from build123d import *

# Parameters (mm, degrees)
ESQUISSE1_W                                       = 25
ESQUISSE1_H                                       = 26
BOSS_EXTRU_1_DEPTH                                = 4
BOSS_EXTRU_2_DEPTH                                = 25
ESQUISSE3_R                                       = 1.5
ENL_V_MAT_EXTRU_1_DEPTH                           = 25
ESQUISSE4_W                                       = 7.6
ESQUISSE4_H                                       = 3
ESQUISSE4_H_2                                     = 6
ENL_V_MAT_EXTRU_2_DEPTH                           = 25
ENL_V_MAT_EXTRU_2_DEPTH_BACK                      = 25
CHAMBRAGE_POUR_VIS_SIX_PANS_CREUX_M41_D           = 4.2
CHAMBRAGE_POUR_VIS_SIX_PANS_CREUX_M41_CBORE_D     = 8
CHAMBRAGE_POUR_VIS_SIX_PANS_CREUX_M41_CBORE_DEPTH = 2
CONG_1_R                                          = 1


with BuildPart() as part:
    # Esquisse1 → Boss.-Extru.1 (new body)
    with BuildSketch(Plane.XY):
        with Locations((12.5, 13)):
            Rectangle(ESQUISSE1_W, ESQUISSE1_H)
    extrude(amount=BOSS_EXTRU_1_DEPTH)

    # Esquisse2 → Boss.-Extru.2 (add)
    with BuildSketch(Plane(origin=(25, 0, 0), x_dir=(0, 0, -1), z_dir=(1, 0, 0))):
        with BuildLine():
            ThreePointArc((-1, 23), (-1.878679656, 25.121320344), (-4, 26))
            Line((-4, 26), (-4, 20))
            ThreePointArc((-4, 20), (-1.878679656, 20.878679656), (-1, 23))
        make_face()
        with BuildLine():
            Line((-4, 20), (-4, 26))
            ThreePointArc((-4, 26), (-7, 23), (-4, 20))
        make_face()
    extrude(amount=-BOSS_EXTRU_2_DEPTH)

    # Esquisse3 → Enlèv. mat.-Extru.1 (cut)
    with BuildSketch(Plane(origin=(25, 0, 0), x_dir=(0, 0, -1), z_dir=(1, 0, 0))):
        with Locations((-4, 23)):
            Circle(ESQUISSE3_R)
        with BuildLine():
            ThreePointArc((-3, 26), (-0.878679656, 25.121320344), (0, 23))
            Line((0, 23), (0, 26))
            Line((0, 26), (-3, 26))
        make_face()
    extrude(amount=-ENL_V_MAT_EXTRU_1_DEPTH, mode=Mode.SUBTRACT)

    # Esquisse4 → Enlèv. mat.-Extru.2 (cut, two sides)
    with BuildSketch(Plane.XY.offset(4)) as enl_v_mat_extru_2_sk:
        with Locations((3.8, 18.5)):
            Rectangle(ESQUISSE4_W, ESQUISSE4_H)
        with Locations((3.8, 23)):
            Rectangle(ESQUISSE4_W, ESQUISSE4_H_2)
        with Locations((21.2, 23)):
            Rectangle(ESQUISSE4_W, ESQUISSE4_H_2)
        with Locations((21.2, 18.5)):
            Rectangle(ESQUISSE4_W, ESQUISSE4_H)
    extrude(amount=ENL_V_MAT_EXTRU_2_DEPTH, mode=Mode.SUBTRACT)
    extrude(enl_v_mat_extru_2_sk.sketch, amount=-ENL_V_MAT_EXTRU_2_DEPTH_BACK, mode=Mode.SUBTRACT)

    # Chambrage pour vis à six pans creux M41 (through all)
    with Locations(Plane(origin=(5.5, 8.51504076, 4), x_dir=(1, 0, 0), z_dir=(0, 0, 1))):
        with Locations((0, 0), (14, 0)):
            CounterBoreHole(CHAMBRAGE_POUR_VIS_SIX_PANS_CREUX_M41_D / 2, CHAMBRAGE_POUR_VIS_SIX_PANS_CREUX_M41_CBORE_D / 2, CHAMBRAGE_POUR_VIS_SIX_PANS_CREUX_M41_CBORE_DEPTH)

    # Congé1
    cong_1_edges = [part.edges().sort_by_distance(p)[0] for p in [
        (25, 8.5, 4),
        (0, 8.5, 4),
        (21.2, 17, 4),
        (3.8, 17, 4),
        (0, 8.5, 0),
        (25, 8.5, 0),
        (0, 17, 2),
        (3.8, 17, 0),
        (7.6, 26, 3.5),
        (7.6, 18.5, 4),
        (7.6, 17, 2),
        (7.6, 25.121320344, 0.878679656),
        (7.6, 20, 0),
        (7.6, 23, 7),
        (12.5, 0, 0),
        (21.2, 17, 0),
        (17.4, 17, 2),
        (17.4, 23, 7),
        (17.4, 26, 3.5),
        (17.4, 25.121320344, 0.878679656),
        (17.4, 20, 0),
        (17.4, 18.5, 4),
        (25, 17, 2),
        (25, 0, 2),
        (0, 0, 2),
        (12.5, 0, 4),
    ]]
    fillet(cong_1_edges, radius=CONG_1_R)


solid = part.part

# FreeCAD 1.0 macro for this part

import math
import FreeCAD as App
import Part
import Sketcher
from FreeCAD import Vector


def edges_at(feature, points):
    """Names of the edges that pass closest to the given points."""
    edges = feature.Shape.Edges
    near = lambda p: min(range(len(edges)), key=lambda i: edges[i].distToShape(Part.Vertex(*p))[0])
    return sorted({f"Edge{near(p) + 1}" for p in points})

doc = App.newDocument("Part")
body = doc.addObject("PartDesign::Body", "Body")

# Sketch on XY plane
sketch1 = doc.addObject("Sketcher::SketchObject", "Sketch")
body.addObject(sketch1)
sketch1.AttachmentSupport = (doc.XY_Plane, [""])
sketch1.MapMode = "FlatFace"
sketch1.addGeometry([
    Part.LineSegment(Vector(0, 26, 0), Vector(0, 0, 0)),
    Part.LineSegment(Vector(0, 0, 0), Vector(25, 0, 0)),
    Part.LineSegment(Vector(25, 0, 0), Vector(25, 26, 0)),
    Part.LineSegment(Vector(25, 26, 0), Vector(0, 26, 0)),
], False)
sketch1.addConstraint([
    Sketcher.Constraint("Coincident", 0, 2, 1, 1),
    Sketcher.Constraint("Coincident", 1, 2, 2, 1),
    Sketcher.Constraint("Coincident", 2, 2, 3, 1),
    Sketcher.Constraint("Coincident", 3, 2, 0, 1),
    Sketcher.Constraint("Vertical", 0),
    Sketcher.Constraint("Horizontal", 1),
    Sketcher.Constraint("Vertical", 2),
    Sketcher.Constraint("Horizontal", 3),
    Sketcher.Constraint("Coincident", 0, 2, -1, 1),
    Sketcher.Constraint("DistanceX", 1, 1, 1, 2, 25.0),
    Sketcher.Constraint("DistanceY", 0, 2, 0, 1, 26.0),
])
pad1 = doc.addObject("PartDesign::Pad", "Pad")
body.addObject(pad1)
pad1.Profile = sketch1
pad1.Length = 4

# Sketch on YZ plane
sketch2 = doc.addObject("Sketcher::SketchObject", "Sketch001")
body.addObject(sketch2)
sketch2.AttachmentSupport = (doc.YZ_Plane, [""])
sketch2.MapMode = "FlatFace"
sketch2.AttachmentOffset = App.Placement(Vector(0, 0, 25), App.Rotation())
sketch2.addGeometry([
    Part.ArcOfCircle(Part.Circle(Vector(23, 4, 0), Vector(0, 0, 1), 3), math.radians(-90), math.radians(0)),
    Part.ArcOfCircle(Part.Circle(Vector(23, 4, 0), Vector(0, 0, 1), 3), math.radians(0), math.radians(180)),
    Part.ArcOfCircle(Part.Circle(Vector(23, 4, 0), Vector(0, 0, 1), 3), math.radians(180), math.radians(270)),
], False)
sketch2.addConstraint([
    Sketcher.Constraint("Tangent", 0, 2, 1, 1),
    Sketcher.Constraint("Tangent", 1, 2, 2, 1),
    Sketcher.Constraint("Tangent", 2, 2, 0, 1),
    Sketcher.Constraint("Horizontal", 2, 3, 0, 2),
    Sketcher.Constraint("Horizontal", 0, 2, 1, 2),
    Sketcher.Constraint("Vertical", 1, 3, 2, 2),
    Sketcher.Constraint("Radius", 0, 3.0),
    Sketcher.Constraint("DistanceX", -1, 1, 0, 3, 23.0),
    Sketcher.Constraint("DistanceY", -1, 1, 0, 3, 4.0),
])
pad2 = doc.addObject("PartDesign::Pad", "Pad001")
body.addObject(pad2)
pad2.Profile = sketch2
pad2.Length = 25
pad2.Reversed = True

# Sketch on YZ plane
sketch3 = doc.addObject("Sketcher::SketchObject", "Sketch002")
body.addObject(sketch3)
sketch3.AttachmentSupport = (doc.YZ_Plane, [""])
sketch3.MapMode = "FlatFace"
sketch3.AttachmentOffset = App.Placement(Vector(0, 0, 25), App.Rotation())
sketch3.addGeometry([
    Part.Circle(Vector(23, 4, 0), Vector(0, 0, 1), 1.5),
    Part.ArcOfCircle(Part.Circle(Vector(23, 3, 0), Vector(0, 0, 1), 3), math.radians(-90), math.radians(0)),
    Part.LineSegment(Vector(23, 0, 0), Vector(26, 0, 0)),
    Part.LineSegment(Vector(26, 0, 0), Vector(26, 3, 0)),
], False)
sketch3.addConstraint([
    Sketcher.Constraint("Tangent", 1, 1, 2, 1),
    Sketcher.Constraint("Coincident", 2, 2, 3, 1),
    Sketcher.Constraint("Tangent", 3, 2, 1, 2),
    Sketcher.Constraint("Horizontal", 2),
    Sketcher.Constraint("Vertical", 3),
    Sketcher.Constraint("PointOnObject", 1, 1, -1),
    Sketcher.Constraint("Vertical", 0, 3, 1, 3),
    Sketcher.Constraint("Diameter", 0, 3.0),
    Sketcher.Constraint("Radius", 1, 3.0),
    Sketcher.Constraint("DistanceX", -1, 1, 0, 3, 23.0),
    Sketcher.Constraint("DistanceY", -1, 1, 0, 3, 4.0),
])
pocket1 = doc.addObject("PartDesign::Pocket", "Pocket")
body.addObject(pocket1)
pocket1.Profile = sketch3
pocket1.Length = 25

# Sketch on XY plane
sketch4 = doc.addObject("Sketcher::SketchObject", "Sketch003")
body.addObject(sketch4)
sketch4.AttachmentSupport = (doc.XY_Plane, [""])
sketch4.MapMode = "FlatFace"
sketch4.AttachmentOffset = App.Placement(Vector(0, 0, 4), App.Rotation())
sketch4.addGeometry([
    Part.LineSegment(Vector(0, 17, 0), Vector(8, 17, 0)),  # 0
    Part.LineSegment(Vector(8, 17, 0), Vector(8, 26, 0)),  # 1
    Part.LineSegment(Vector(8, 26, 0), Vector(0, 26, 0)),  # 2
    Part.LineSegment(Vector(0, 26, 0), Vector(0, 17, 0)),  # 3
    Part.LineSegment(Vector(17, 26, 0), Vector(17, 17, 0)),  # 4
    Part.LineSegment(Vector(17, 17, 0), Vector(25, 17, 0)),  # 5
    Part.LineSegment(Vector(25, 17, 0), Vector(25, 26, 0)),  # 6
    Part.LineSegment(Vector(25, 26, 0), Vector(17, 26, 0)),  # 7
], False)
sketch4.addConstraint([
    Sketcher.Constraint("Coincident", 0, 2, 1, 1),
    Sketcher.Constraint("Coincident", 1, 2, 2, 1),
    Sketcher.Constraint("Coincident", 2, 2, 3, 1),
    Sketcher.Constraint("Coincident", 3, 2, 0, 1),
    Sketcher.Constraint("Coincident", 4, 2, 5, 1),
    Sketcher.Constraint("Coincident", 5, 2, 6, 1),
    Sketcher.Constraint("Coincident", 6, 2, 7, 1),
    Sketcher.Constraint("Coincident", 7, 2, 4, 1),
    Sketcher.Constraint("Horizontal", 0),
    Sketcher.Constraint("Vertical", 1),
    Sketcher.Constraint("Horizontal", 2),
    Sketcher.Constraint("Vertical", 3),
    Sketcher.Constraint("Vertical", 4),
    Sketcher.Constraint("Horizontal", 5),
    Sketcher.Constraint("Vertical", 6),
    Sketcher.Constraint("Horizontal", 7),
    Sketcher.Constraint("PointOnObject", 2, 2, -2),
    Sketcher.Constraint("Horizontal", 3, 2, 4, 2),
    Sketcher.Constraint("Horizontal", 2, 2, 6, 2),
    Sketcher.Constraint("Equal", 2, 5),
    Sketcher.Constraint("DistanceY", 1, 1, 1, 2, 9.0),
    Sketcher.Constraint("DistanceX", 0, 1, 0, 2, 7.6),
    Sketcher.Constraint("DistanceY", -1, 1, 0, 2, 17.0),
    Sketcher.Constraint("DistanceX", -1, 1, 5, 2, 25.0),
])
pocket2 = doc.addObject("PartDesign::Pocket", "Pocket001")
body.addObject(pocket2)
pocket2.Profile = sketch4
pocket2.Type = "ThroughAll"
pocket2.Midplane = True

# Sketch on XY plane
sketch5 = doc.addObject("Sketcher::SketchObject", "Sketch004")
body.addObject(sketch5)
sketch5.AttachmentSupport = (doc.XY_Plane, [""])
sketch5.MapMode = "FlatFace"
sketch5.AttachmentOffset = App.Placement(Vector(0, 0, 4), App.Rotation())
sketch5.addGeometry([
    Part.Circle(Vector(5.5, 8.5, 0), Vector(0, 0, 1), 2.1),
    Part.Circle(Vector(19.5, 8.5, 0), Vector(0, 0, 1), 2.1),
], False)
sketch5.addConstraint([
    Sketcher.Constraint("Equal", 0, 1),
    Sketcher.Constraint("Horizontal", 0, 3, 1, 3),
    Sketcher.Constraint("Diameter", 0, 4.2),
    Sketcher.Constraint("DistanceX", 0, 3, 1, 3, 14.0),
    Sketcher.Constraint("DistanceX", -1, 1, 0, 3, 5.5),
    Sketcher.Constraint("DistanceY", -1, 1, 0, 3, 8.515041),
])
doc.recompute()
hole = doc.addObject("PartDesign::Hole", "Hole")
body.addObject(hole)
hole.Profile = sketch5
hole.ThreadType = "None"
hole.Diameter = 4.2
hole.DepthType = "ThroughAll"
hole.HoleCutType = "Counterbore"
hole.HoleCutDiameter = 8
hole.HoleCutDepth = 2
doc.recompute()

fillet = doc.addObject("PartDesign::Fillet", "Fillet")
body.addObject(fillet)
fillet.Base = (hole, edges_at(hole, [
    (25, 8.5, 4),
    (0, 8.5, 4),
    (21.2, 17, 4),
    (3.8, 17, 4),
    (0, 8.5, 0),
    (25, 8.5, 0),
    (0, 17, 2),
    (3.8, 17, 0),
    (7.6, 26, 3.5),
    (7.6, 18.5, 4),
    (7.6, 17, 2),
    (7.6, 25.121, 0.879),
    (7.6, 20, 0),
    (7.6, 23, 7),
    (12.5, 0, 0),
    (21.2, 17, 0),
    (17.4, 17, 2),
    (17.4, 23, 7),
    (17.4, 26, 3.5),
    (17.4, 25.121, 0.879),
    (17.4, 20, 0),
    (17.4, 18.5, 4),
    (25, 17, 2),
    (25, 0, 2),
    (0, 0, 2),
    (12.5, 0, 4),
]))
fillet.Radius = 1

doc.recompute()
